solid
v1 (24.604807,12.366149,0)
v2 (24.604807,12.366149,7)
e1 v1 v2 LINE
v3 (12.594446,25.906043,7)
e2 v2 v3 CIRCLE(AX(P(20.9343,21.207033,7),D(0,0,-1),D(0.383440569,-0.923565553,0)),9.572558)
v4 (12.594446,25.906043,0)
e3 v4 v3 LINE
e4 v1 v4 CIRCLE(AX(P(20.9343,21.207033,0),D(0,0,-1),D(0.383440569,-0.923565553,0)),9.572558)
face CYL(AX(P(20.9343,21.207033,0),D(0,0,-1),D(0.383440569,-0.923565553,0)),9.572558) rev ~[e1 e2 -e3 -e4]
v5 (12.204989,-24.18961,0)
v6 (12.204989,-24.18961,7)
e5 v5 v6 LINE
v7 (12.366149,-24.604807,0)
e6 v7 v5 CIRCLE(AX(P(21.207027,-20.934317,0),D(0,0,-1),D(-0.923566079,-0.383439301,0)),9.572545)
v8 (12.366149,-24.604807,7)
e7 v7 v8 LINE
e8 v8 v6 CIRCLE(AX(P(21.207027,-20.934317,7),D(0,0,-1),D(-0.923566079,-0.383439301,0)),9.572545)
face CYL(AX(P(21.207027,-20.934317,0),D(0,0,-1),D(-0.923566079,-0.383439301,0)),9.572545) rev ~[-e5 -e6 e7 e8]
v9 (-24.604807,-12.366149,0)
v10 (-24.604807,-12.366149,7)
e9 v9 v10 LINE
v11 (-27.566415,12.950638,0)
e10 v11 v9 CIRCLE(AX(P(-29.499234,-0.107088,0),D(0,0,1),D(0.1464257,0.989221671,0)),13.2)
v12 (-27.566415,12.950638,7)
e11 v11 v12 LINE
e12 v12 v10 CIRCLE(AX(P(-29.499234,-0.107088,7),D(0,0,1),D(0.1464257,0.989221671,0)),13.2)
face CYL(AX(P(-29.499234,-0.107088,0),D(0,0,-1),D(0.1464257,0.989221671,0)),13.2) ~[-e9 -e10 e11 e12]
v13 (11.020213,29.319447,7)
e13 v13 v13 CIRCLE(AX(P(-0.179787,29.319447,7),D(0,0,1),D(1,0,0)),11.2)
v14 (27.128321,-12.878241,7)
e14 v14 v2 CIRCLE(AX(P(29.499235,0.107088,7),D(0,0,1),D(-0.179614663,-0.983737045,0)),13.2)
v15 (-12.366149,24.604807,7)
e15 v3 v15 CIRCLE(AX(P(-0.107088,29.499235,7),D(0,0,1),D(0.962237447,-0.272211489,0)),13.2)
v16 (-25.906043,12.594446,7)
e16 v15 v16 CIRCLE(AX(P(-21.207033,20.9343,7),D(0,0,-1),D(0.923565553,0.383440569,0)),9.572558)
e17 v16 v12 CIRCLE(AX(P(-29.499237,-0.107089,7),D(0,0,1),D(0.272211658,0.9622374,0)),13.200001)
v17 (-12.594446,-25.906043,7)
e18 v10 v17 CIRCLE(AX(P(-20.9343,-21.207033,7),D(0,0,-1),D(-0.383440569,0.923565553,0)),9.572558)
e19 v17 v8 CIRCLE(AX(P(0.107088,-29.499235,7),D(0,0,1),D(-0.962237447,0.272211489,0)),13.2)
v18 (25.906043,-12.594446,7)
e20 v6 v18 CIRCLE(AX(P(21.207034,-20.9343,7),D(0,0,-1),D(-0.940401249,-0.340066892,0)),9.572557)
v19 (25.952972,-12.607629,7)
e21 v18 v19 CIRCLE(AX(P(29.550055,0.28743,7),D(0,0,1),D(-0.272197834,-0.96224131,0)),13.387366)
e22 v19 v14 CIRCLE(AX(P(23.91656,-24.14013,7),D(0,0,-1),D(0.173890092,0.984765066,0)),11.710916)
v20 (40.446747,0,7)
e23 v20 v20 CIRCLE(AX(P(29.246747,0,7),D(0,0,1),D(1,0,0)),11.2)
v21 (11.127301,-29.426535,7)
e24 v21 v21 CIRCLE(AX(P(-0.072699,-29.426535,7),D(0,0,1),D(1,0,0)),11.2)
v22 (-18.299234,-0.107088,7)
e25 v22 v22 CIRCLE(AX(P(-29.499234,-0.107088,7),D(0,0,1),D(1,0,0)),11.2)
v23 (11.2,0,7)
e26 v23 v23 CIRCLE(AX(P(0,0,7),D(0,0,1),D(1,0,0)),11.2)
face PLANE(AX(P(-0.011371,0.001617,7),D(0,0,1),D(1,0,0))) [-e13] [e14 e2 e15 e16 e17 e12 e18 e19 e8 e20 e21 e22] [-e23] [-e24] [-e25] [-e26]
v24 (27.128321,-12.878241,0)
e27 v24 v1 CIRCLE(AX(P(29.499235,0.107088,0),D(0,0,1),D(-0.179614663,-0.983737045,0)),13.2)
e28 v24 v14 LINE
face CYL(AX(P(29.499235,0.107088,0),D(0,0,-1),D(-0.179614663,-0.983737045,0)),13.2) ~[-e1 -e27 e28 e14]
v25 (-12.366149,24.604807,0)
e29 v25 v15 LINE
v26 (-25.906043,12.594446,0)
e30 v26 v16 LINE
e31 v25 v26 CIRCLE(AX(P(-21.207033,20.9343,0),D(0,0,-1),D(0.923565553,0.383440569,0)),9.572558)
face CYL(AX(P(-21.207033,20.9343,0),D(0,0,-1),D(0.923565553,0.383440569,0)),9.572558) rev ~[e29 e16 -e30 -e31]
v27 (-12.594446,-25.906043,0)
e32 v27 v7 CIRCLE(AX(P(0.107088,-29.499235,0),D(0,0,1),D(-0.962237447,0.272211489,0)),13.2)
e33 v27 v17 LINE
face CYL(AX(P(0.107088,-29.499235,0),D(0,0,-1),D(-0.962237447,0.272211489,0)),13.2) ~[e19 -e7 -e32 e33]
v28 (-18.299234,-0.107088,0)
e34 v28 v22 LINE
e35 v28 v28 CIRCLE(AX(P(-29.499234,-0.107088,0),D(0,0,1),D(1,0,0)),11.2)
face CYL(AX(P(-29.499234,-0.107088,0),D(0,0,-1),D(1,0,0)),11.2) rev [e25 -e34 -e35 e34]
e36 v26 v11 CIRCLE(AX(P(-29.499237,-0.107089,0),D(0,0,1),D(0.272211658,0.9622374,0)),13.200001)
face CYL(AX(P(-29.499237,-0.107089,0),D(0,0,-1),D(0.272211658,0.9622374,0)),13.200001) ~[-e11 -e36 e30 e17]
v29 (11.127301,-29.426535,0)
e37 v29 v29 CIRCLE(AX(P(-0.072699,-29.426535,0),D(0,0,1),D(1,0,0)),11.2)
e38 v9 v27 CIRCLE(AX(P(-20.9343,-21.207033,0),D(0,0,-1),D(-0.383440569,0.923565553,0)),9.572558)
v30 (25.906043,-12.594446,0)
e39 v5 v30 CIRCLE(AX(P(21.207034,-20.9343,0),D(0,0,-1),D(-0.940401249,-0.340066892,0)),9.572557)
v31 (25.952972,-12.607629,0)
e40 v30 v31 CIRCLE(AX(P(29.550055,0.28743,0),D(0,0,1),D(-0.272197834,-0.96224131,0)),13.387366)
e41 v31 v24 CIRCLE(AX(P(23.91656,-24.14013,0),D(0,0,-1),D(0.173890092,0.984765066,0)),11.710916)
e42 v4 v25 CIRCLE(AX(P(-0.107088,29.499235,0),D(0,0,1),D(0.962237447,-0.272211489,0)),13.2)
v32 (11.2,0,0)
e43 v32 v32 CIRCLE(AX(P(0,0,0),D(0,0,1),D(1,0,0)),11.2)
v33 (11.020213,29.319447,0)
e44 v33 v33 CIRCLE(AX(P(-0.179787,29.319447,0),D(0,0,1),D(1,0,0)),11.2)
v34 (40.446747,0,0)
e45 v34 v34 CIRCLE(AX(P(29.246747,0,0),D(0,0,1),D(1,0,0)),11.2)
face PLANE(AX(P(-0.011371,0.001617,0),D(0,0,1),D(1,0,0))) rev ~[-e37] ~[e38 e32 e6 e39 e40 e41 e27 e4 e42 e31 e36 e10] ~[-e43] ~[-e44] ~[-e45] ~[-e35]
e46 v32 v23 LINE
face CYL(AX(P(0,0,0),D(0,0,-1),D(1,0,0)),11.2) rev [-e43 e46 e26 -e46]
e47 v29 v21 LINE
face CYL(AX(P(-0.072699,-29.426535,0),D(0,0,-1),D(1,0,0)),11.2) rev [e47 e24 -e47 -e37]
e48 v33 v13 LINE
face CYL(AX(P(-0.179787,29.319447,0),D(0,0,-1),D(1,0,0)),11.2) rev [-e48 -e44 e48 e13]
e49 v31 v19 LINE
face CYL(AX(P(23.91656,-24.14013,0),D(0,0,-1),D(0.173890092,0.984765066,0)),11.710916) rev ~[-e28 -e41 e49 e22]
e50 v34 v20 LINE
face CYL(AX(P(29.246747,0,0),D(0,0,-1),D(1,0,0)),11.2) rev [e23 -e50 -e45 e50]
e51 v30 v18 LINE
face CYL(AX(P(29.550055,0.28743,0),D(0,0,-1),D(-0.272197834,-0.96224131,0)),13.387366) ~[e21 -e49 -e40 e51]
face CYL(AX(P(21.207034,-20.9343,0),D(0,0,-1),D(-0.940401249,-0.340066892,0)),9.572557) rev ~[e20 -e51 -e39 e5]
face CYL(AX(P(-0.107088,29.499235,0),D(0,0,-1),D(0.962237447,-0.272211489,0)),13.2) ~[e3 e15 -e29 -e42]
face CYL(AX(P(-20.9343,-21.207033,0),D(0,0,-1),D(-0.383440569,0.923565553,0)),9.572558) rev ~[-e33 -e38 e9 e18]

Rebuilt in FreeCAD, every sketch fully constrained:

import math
import FreeCAD as App
import Part
import Sketcher

V = App.Vector
Q = App.Units.Quantity

doc = App.newDocument("Part")
body = doc.addObject("PartDesign::Body", "Body")

sketch1 = doc.addObject("Sketcher::SketchObject", "Sketch")
body.addObject(sketch1)
sketch1.AttachmentSupport = (doc.XY_Plane, [""])
sketch1.MapMode = "FlatFace"
sketch1.addGeometry([
    Part.ArcOfCircle(Part.Circle(V(-21.207, 20.934, 0), V(0, 0, 1), 9.573), math.radians(-119), math.radians(23)),
    Part.ArcOfCircle(Part.Circle(V(-29.499, -0.107, 0), V(0, 0, 1), 13.2), math.radians(74.2), math.radians(81.58)),
    Part.ArcOfCircle(Part.Circle(V(-29.499, -0.107, 0), V(0, 0, 1), 13.2), math.radians(82), math.radians(292)),
    Part.ArcOfCircle(Part.Circle(V(-20.934, -21.207, 0), V(0, 0, 1), 9.573), math.radians(-29), math.radians(113)),
    Part.ArcOfCircle(Part.Circle(V(0.107, -29.499, 0), V(0, 0, 1), 13.2), math.radians(164), math.radians(382)),
    Part.ArcOfCircle(Part.Circle(V(21.207, -20.934, 0), V(0, 0, 1), 9.573), math.radians(-160.12), math.radians(-157.45)),
    Part.ArcOfCircle(Part.Circle(V(21.207, -20.934, 0), V(0, 0, 1), 9.573), math.radians(61), math.radians(200)),
    Part.ArcOfCircle(Part.Circle(V(29.55, 0.287, 0), V(0, 0, 1), 13.387), math.radians(-105.8), math.radians(-105.59)),
    Part.ArcOfCircle(Part.Circle(V(23.917, -24.14, 0), V(0, 0, 1), 11.711), math.radians(74.08), math.radians(79.99)),
    Part.ArcOfCircle(Part.Circle(V(29.499, 0.107, 0), V(0, 0, 1), 13.2), math.radians(-100), math.radians(112)),
    Part.ArcOfCircle(Part.Circle(V(20.934, 21.207, 0), V(0, 0, 1), 9.573), math.radians(151), math.radians(293)),
    Part.ArcOfCircle(Part.Circle(V(-0.107, 29.499, 0), V(0, 0, 1), 13.2), math.radians(-16), math.radians(202)),
    Part.Circle(V(-29.499, -0.107, 0), V(0, 0, 1), 11.2),
    Part.Circle(V(-0.073, -29.427, 0), V(0, 0, 1), 11.2),
    Part.Circle(V(-0.18, 29.319, 0), V(0, 0, 1), 11.2),
    Part.Circle(V(0, 0, 0), V(0, 0, 1), 11.2),
    Part.Circle(V(29.247, 0, 0), V(0, 0, 1), 11.2),
], False)
sketch1.addConstraint([
    Sketcher.Constraint("Coincident", 0, 1, 1, 1),
    Sketcher.Constraint("Tangent", 1, 2, 2, 1),
    Sketcher.Constraint("Coincident", 2, 2, 3, 2),
    Sketcher.Constraint("Coincident", 3, 1, 4, 1),
    Sketcher.Constraint("Coincident", 4, 2, 5, 2),
    Sketcher.Constraint("Tangent", 5, 1, 6, 2),
    Sketcher.Constraint("Coincident", 6, 1, 7, 1),
    Sketcher.Constraint("Coincident", 7, 2, 8, 2),
    Sketcher.Constraint("Coincident", 8, 1, 9, 1),
    Sketcher.Constraint("Coincident", 9, 2, 10, 2),
    Sketcher.Constraint("Coincident", 10, 1, 11, 1),
    Sketcher.Constraint("Coincident", 11, 2, 0, 2),
    Sketcher.Constraint("Coincident", 15, 3, -1, 1),
    Sketcher.Constraint("Coincident", 12, 3, 1, 3),
    Sketcher.Constraint("Equal", 1, 2),
    Sketcher.Constraint("Equal", 0, 3),
    Sketcher.Constraint("Equal", 2, 4),
    Sketcher.Constraint("Equal", 3, 6),
    Sketcher.Constraint("Equal", 4, 9),
    Sketcher.Constraint("Equal", 6, 10),
    Sketcher.Constraint("Equal", 9, 11),
    Sketcher.Constraint("Equal", 12, 13),
    Sketcher.Constraint("Equal", 13, 14),
    Sketcher.Constraint("Equal", 14, 15),
    Sketcher.Constraint("Equal", 15, 16),
    Sketcher.Constraint("Symmetric", 0, 3, 6, 3, -1, 1),
    Sketcher.Constraint("Symmetric", 1, 3, 9, 3, -1, 1),
    Sketcher.Constraint("Symmetric", 3, 3, 10, 3, -1, 1),
    Sketcher.Constraint("Symmetric", 4, 3, 11, 3, -1, 1),
    Sketcher.Constraint("PointOnObject", 16, 3, -1),
    Sketcher.Constraint("Diameter", 12, Q("22.4 mm")),
    Sketcher.Constraint("Radius", 1, Q("13.200001 mm")),
    Sketcher.Constraint("Radius", 0, Q("9.572558 mm")),
    Sketcher.Constraint("Radius", 5, Q("9.572545 mm")),
    Sketcher.Constraint("Radius", 7, Q("13.387366 mm")),
    Sketcher.Constraint("Radius", 8, Q("11.710916 mm")),
    Sketcher.Constraint("DistanceY", -1, 1, 0, 3, Q("20.9343 mm")),
    Sketcher.Constraint("DistanceX", 3, 3, -1, 1, Q("20.9343 mm")),
    Sketcher.Constraint("DistanceX", 13, 3, -1, 1, Q("0.072699 mm")),
    Sketcher.Constraint("DistanceX", 2, 3, 0, 3, Q("8.292201 mm")),
    Sketcher.Constraint("DistanceY", 4, 3, 3, 3, Q("8.292201 mm")),
    Sketcher.Constraint("DistanceY", 4, 3, 13, 3, Q("0.0727 mm")),
    Sketcher.Constraint("DistanceX", 14, 3, 11, 3, Q("0.072699 mm")),
    Sketcher.Constraint("DistanceX", 4, 3, 5, 1, Q("12.097901 mm")),
    Sketcher.Constraint("DistanceY", 8, 3, 7, 2, Q("11.532501 mm")),
    Sketcher.Constraint("DistanceY", 1, 3, -1, 1, Q("0.107089 mm")),
    Sketcher.Constraint("DistanceX", -1, 1, 4, 3, Q("0.107088 mm")),
    Sketcher.Constraint("DistanceY", -1, 1, 7, 3, Q("0.28743 mm")),
    Sketcher.Constraint("DistanceX", -1, 1, 8, 3, Q("23.91656 mm")),
    Sketcher.Constraint("DistanceY", 8, 3, -1, 1, Q("24.14013 mm")),
    Sketcher.Constraint("DistanceY", -1, 1, 1, 2, Q("12.950638 mm")),
    Sketcher.Constraint("DistanceY", 2, 2, -1, 1, Q("12.366149 mm")),
    Sketcher.Constraint("DistanceX", -1, 1, 4, 2, Q("12.366149 mm")),
    Sketcher.Constraint("DistanceX", 5, 3, 16, 3, Q("8.03972 mm")),
    Sketcher.Constraint("DistanceY", 11, 2, 14, 3, Q("4.71464 mm")),
])
pad1 = doc.addObject("PartDesign::Pad", "Pad")
body.addObject(pad1)
pad1.Profile = sketch1
pad1.Length = 7

doc.recompute()
